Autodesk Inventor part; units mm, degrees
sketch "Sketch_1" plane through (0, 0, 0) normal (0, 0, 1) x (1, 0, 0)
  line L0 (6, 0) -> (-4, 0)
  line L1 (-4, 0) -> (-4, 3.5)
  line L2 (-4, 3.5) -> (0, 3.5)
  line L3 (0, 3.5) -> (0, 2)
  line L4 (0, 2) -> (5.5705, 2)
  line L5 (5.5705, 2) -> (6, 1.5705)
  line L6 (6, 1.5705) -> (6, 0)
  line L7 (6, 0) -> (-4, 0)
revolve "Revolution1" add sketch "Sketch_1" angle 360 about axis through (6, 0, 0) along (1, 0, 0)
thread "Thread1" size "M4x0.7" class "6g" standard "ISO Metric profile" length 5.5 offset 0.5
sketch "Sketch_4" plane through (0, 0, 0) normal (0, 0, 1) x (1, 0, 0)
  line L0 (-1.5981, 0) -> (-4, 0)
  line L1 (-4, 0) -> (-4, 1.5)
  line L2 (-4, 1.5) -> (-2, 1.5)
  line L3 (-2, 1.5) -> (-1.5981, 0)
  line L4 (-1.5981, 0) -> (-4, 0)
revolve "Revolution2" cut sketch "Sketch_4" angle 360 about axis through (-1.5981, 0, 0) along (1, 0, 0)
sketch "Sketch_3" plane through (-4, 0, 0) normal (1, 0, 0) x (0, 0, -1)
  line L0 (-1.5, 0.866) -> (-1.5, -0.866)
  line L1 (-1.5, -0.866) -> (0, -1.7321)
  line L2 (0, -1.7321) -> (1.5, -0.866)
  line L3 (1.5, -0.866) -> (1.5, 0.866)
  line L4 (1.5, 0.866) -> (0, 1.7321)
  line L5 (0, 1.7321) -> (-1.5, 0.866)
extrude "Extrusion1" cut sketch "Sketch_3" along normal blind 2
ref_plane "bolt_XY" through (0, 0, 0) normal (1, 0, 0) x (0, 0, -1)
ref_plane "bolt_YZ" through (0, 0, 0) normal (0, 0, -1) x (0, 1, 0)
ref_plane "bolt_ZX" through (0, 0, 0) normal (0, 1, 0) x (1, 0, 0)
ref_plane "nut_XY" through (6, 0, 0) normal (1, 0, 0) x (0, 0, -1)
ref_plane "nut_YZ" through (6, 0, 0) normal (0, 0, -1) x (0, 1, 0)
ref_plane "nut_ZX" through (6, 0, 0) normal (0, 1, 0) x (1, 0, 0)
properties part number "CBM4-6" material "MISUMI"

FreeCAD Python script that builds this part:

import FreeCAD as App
import Part
import Sketcher
from FreeCAD import Vector
Q = App.Units.Quantity

doc = App.newDocument("Part")
body = doc.addObject("PartDesign::Body", "Body")

# Sketch on XY plane
sketch1 = doc.addObject("Sketcher::SketchObject", "Sketch")
body.addObject(sketch1)
sketch1.AttachmentSupport = (doc.XY_Plane, [""])
sketch1.MapMode = "FlatFace"
sketch1.addGeometry(Part.LineSegment(Vector(-4, 0, 0), Vector(6, 0, 0)), False)
sketch1.addGeometry(Part.LineSegment(Vector(6, 0, 0), Vector(6, 1.5705, 0)), False)
sketch1.addGeometry(Part.LineSegment(Vector(6, 1.5705, 0), Vector(5.5705, 2, 0)), False)
sketch1.addGeometry(Part.LineSegment(Vector(5.5705, 2, 0), Vector(0, 2, 0)), False)
sketch1.addGeometry(Part.LineSegment(Vector(0, 2, 0), Vector(0, 3.5, 0)), False)
sketch1.addGeometry(Part.LineSegment(Vector(0, 3.5, 0), Vector(-4, 3.5, 0)), False)
sketch1.addGeometry(Part.LineSegment(Vector(-4, 3.5, 0), Vector(-4, 0, 0)), False)
sketch1.addConstraint(Sketcher.Constraint("Coincident", 0, 2, 1, 1))
sketch1.addConstraint(Sketcher.Constraint("Coincident", 1, 2, 2, 1))
sketch1.addConstraint(Sketcher.Constraint("Coincident", 2, 2, 3, 1))
sketch1.addConstraint(Sketcher.Constraint("Coincident", 3, 2, 4, 1))
sketch1.addConstraint(Sketcher.Constraint("Coincident", 4, 2, 5, 1))
sketch1.addConstraint(Sketcher.Constraint("Coincident", 5, 2, 6, 1))
sketch1.addConstraint(Sketcher.Constraint("Coincident", 6, 2, 0, 1))
sketch1.addConstraint(Sketcher.Constraint("Horizontal", 0))
sketch1.addConstraint(Sketcher.Constraint("Vertical", 1))
sketch1.addConstraint(Sketcher.Constraint("Horizontal", 3))
sketch1.addConstraint(Sketcher.Constraint("Vertical", 4))
sketch1.addConstraint(Sketcher.Constraint("Horizontal", 5))
sketch1.addConstraint(Sketcher.Constraint("Vertical", 6))
sketch1.addConstraint(Sketcher.Constraint("PointOnObject", 0, 2, -1))
sketch1.addConstraint(Sketcher.Constraint("PointOnObject", 3, 2, -2))
sketch1.addConstraint(Sketcher.Constraint("DistanceX", 0, 1, 0, 2, 10.0))
sketch1.addConstraint(Sketcher.Constraint("DistanceX", 5, 2, 5, 1, 4.0))
sketch1.addConstraint(Sketcher.Constraint("Angle", 2, Q("135 deg")))
sketch1.addConstraint(Sketcher.Constraint("DistanceY", 4, 1, 4, 2, 1.5))
sketch1.addConstraint(Sketcher.Constraint("DistanceY", 6, 2, 6, 1, 3.5))
sketch1.addConstraint(Sketcher.Constraint("DistanceX", 3, 2, 3, 1, 5.5705))
revolution = doc.addObject("PartDesign::Revolution", "Revolution")
body.addObject(revolution)
revolution.Profile = sketch1
revolution.ReferenceAxis = (sketch1, ["H_Axis"])
revolution.Angle = 360

# Sketch on XY plane
sketch2 = doc.addObject("Sketcher::SketchObject", "Sketch001")
body.addObject(sketch2)
sketch2.AttachmentSupport = (doc.XY_Plane, [""])
sketch2.MapMode = "FlatFace"
sketch2.addGeometry(Part.LineSegment(Vector(-4, 0, 0), Vector(-1.5981, 0, 0)), False)
sketch2.addGeometry(Part.LineSegment(Vector(-1.5981, 0, 0), Vector(-2, 1.5, 0)), False)
sketch2.addGeometry(Part.LineSegment(Vector(-2, 1.5, 0), Vector(-4, 1.5, 0)), False)
sketch2.addGeometry(Part.LineSegment(Vector(-4, 1.5, 0), Vector(-4, 0, 0)), False)
sketch2.addConstraint(Sketcher.Constraint("Coincident", 0, 2, 1, 1))
sketch2.addConstraint(Sketcher.Constraint("Coincident", 1, 2, 2, 1))
sketch2.addConstraint(Sketcher.Constraint("Coincident", 2, 2, 3, 1))
sketch2.addConstraint(Sketcher.Constraint("Coincident", 3, 2, 0, 1))
sketch2.addConstraint(Sketcher.Constraint("Horizontal", 0))
sketch2.addConstraint(Sketcher.Constraint("Horizontal", 2))
sketch2.addConstraint(Sketcher.Constraint("Vertical", 3))
sketch2.addConstraint(Sketcher.Constraint("PointOnObject", 0, 2, -1))
sketch2.addConstraint(Sketcher.Constraint("DistanceX", 2, 2, 2, 1, 2.0))
sketch2.addConstraint(Sketcher.Constraint("Angle", 1, Q("104.9992 deg")))
sketch2.addConstraint(Sketcher.Constraint("DistanceY", 3, 2, 3, 1, 1.5))
sketch2.addConstraint(Sketcher.Constraint("DistanceX", 1, 2, -1, 1, 2.0))
groove = doc.addObject("PartDesign::Groove", "Groove")
body.addObject(groove)
groove.Profile = sketch2
groove.ReferenceAxis = (sketch2, ["H_Axis"])
groove.Angle = 360

# Sketch on YZ plane
sketch3 = doc.addObject("Sketcher::SketchObject", "Sketch002")
body.addObject(sketch3)
sketch3.AttachmentSupport = (doc.YZ_Plane, [""])
sketch3.MapMode = "FlatFace"
sketch3.AttachmentOffset = App.Placement(Vector(0, 0, -4), App.Rotation())
sketch3.addGeometry(Part.LineSegment(Vector(1.7321, 0, 0), Vector(0.866, 1.5, 0)), False)
sketch3.addGeometry(Part.LineSegment(Vector(0.866, 1.5, 0), Vector(-0.866, 1.5, 0)), False)
sketch3.addGeometry(Part.LineSegment(Vector(-0.866, 1.5, 0), Vector(-1.7321, 0, 0)), False)
sketch3.addGeometry(Part.LineSegment(Vector(-1.7321, 0, 0), Vector(-0.866, -1.5, 0)), False)
sketch3.addGeometry(Part.LineSegment(Vector(-0.866, -1.5, 0), Vector(0.866, -1.5, 0)), False)
sketch3.addGeometry(Part.LineSegment(Vector(0.866, -1.5, 0), Vector(1.7321, 0, 0)), False)
sketch3.addConstraint(Sketcher.Constraint("Coincident", 0, 2, 1, 1))
sketch3.addConstraint(Sketcher.Constraint("Coincident", 1, 2, 2, 1))
sketch3.addConstraint(Sketcher.Constraint("Coincident", 2, 2, 3, 1))
sketch3.addConstraint(Sketcher.Constraint("Coincident", 3, 2, 4, 1))
sketch3.addConstraint(Sketcher.Constraint("Coincident", 4, 2, 5, 1))
sketch3.addConstraint(Sketcher.Constraint("Coincident", 5, 2, 0, 1))
sketch3.addConstraint(Sketcher.Constraint("Horizontal", 1))
sketch3.addConstraint(Sketcher.Constraint("Horizontal", 4))
sketch3.addConstraint(Sketcher.Constraint("Symmetric", 0, 2, 3, 2, -1, 1))
sketch3.addConstraint(Sketcher.Constraint("Symmetric", 2, 2, 5, 2, -1, 1))
sketch3.addConstraint(Sketcher.Constraint("PointOnObject", 2, 2, -1))
sketch3.addConstraint(Sketcher.Constraint("Parallel", 2, 5))
sketch3.addConstraint(Sketcher.Constraint("Vertical", 1, 2, 3, 2))
sketch3.addConstraint(Sketcher.Constraint("DistanceY", 3, 2, 1, 2, 3.0))
sketch3.addConstraint(Sketcher.Constraint("DistanceX", 1, 2, 1, 1, 1.732))
sketch3.addConstraint(Sketcher.Constraint("Distance", 0, 1.732))
pocket1 = doc.addObject("PartDesign::Pocket", "Pocket")
body.addObject(pocket1)
pocket1.Profile = sketch3
pocket1.Length = 2
pocket1.Reversed = True

doc.recompute()
